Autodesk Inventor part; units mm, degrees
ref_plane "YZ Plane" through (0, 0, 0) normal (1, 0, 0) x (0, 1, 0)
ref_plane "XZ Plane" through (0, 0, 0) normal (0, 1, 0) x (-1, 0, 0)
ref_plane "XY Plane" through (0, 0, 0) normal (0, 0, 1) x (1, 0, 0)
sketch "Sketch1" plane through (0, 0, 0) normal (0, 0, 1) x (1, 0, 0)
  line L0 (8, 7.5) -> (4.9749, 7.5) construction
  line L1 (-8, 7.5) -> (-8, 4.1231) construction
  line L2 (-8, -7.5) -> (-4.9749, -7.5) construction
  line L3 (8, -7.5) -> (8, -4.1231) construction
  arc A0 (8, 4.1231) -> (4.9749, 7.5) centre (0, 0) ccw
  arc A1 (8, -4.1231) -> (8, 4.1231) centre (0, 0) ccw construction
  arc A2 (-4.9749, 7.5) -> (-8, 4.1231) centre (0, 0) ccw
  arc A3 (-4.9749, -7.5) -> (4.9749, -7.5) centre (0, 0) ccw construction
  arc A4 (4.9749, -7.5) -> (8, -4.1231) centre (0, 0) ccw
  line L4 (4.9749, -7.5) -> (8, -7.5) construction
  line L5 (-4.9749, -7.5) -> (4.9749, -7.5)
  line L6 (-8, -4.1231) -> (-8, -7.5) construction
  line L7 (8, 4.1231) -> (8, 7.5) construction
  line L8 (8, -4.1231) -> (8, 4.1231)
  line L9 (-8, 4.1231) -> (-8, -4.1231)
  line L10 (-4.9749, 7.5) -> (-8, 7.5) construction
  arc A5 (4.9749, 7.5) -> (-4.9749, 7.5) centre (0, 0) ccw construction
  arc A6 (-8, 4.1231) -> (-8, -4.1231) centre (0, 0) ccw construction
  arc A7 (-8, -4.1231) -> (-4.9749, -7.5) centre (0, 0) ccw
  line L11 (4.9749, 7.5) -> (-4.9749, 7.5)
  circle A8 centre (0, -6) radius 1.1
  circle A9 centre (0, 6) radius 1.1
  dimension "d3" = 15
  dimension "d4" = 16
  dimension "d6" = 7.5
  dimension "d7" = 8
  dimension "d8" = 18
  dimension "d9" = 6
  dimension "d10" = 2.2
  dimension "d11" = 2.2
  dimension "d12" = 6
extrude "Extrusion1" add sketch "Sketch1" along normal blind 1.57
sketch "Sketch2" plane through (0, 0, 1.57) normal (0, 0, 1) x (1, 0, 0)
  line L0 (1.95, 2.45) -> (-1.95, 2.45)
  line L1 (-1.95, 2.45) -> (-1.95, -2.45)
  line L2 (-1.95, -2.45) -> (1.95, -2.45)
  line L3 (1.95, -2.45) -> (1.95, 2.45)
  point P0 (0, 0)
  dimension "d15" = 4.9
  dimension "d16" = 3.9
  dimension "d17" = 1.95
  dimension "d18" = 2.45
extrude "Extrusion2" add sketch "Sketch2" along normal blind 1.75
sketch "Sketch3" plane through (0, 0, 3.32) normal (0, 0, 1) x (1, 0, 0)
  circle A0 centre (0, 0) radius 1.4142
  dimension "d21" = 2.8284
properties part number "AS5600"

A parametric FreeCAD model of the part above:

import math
import FreeCAD as App
import Part
import Sketcher

doc = App.newDocument("Part")
body = doc.addObject("PartDesign::Body", "Body")

sketch1 = doc.addObject("Sketcher::SketchObject", "Sketch")
body.addObject(sketch1)
sketch1.AttachmentSupport = (doc.XY_Plane, [""])
sketch1.MapMode = "FlatFace"
sketch1.addGeometry(Part.LineSegment(App.Vector(8, -4.1231, 0), App.Vector(8, 4.1231, 0)), False)
sketch1.addGeometry(Part.ArcOfCircle(Part.Circle(App.Vector(0, 0, 0), App.Vector(0, 0, 1), 8.999979), math.radians(27.266013), math.radians(56.442888)), False)
sketch1.addGeometry(Part.LineSegment(App.Vector(4.9749, 7.5, 0), App.Vector(-4.9749, 7.5, 0)), False)
sketch1.addGeometry(Part.ArcOfCircle(Part.Circle(App.Vector(0, 0, 0), App.Vector(0, 0, 1), 8.999997), math.radians(123.557112), math.radians(152.733987)), False)
sketch1.addGeometry(Part.LineSegment(App.Vector(-8, 4.1231, 0), App.Vector(-8, -4.1231, 0)), False)
sketch1.addGeometry(Part.ArcOfCircle(Part.Circle(App.Vector(0, 0, 0), App.Vector(0, 0, 1), 8.999979), math.radians(-152.733987), math.radians(-123.557112)), False)
sketch1.addGeometry(Part.LineSegment(App.Vector(-4.9749, -7.5, 0), App.Vector(4.9749, -7.5, 0)), False)
sketch1.addGeometry(Part.ArcOfCircle(Part.Circle(App.Vector(0, 0, 0), App.Vector(0, 0, 1), 8.999997), math.radians(-56.442888), math.radians(-27.266013)), False)
sketch1.addGeometry(Part.Circle(App.Vector(0, -6, 0), App.Vector(0, 0, 1), 1.1), False)
sketch1.addGeometry(Part.Circle(App.Vector(0, 6, 0), App.Vector(0, 0, 1), 1.1), False)
sketch1.addConstraint(Sketcher.Constraint("Coincident", 0, 2, 1, 1))
sketch1.addConstraint(Sketcher.Constraint("Coincident", 1, 2, 2, 1))
sketch1.addConstraint(Sketcher.Constraint("Coincident", 2, 2, 3, 1))
sketch1.addConstraint(Sketcher.Constraint("Coincident", 3, 2, 4, 1))
sketch1.addConstraint(Sketcher.Constraint("Coincident", 4, 2, 5, 1))
sketch1.addConstraint(Sketcher.Constraint("Coincident", 5, 2, 6, 1))
sketch1.addConstraint(Sketcher.Constraint("Coincident", 6, 2, 7, 1))
sketch1.addConstraint(Sketcher.Constraint("Coincident", 7, 2, 0, 1))
sketch1.addConstraint(Sketcher.Constraint("Vertical", 0))
sketch1.addConstraint(Sketcher.Constraint("Horizontal", 2))
sketch1.addConstraint(Sketcher.Constraint("Vertical", 4))
sketch1.addConstraint(Sketcher.Constraint("Horizontal", 6))
sketch1.addConstraint(Sketcher.Constraint("Coincident", 1, 3, -1, 1))
sketch1.addConstraint(Sketcher.Constraint("Coincident", 3, 3, -1, 1))
sketch1.addConstraint(Sketcher.Constraint("Coincident", 5, 3, -1, 1))
sketch1.addConstraint(Sketcher.Constraint("Coincident", 7, 3, -1, 1))
sketch1.addConstraint(Sketcher.Constraint("Equal", 1, 3))
sketch1.addConstraint(Sketcher.Constraint("Equal", 3, 5))
sketch1.addConstraint(Sketcher.Constraint("Equal", 5, 7))
sketch1.addConstraint(Sketcher.Constraint("Equal", 8, 9))
sketch1.addConstraint(Sketcher.Constraint("Symmetric", 8, 3, 9, 3, -1, 1))
sketch1.addConstraint(Sketcher.Constraint("PointOnObject", 8, 3, -2))
sketch1.addConstraint(Sketcher.Constraint("Horizontal", 0, 2, 3, 2))
sketch1.addConstraint(Sketcher.Constraint("Vertical", 2, 2, 5, 2))
sketch1.addConstraint(Sketcher.Constraint("Radius", 1, 9.0))
sketch1.addConstraint(Sketcher.Constraint("Diameter", 8, 2.2))
sketch1.addConstraint(Sketcher.Constraint("DistanceY", 8, 3, -1, 1, 6.0))
sketch1.addConstraint(Sketcher.Constraint("DistanceX", -1, 1, 0, 2, 8.0))
sketch1.addConstraint(Sketcher.Constraint("DistanceY", -1, 1, 1, 2, 7.5))
pad1 = doc.addObject("PartDesign::Pad", "Pad")
body.addObject(pad1)
pad1.Profile = sketch1
pad1.Length = 1.57

sketch2 = doc.addObject("Sketcher::SketchObject", "Sketch001")
body.addObject(sketch2)
sketch2.AttachmentSupport = (doc.XY_Plane, [""])
sketch2.MapMode = "FlatFace"
sketch2.AttachmentOffset = App.Placement(App.Vector(0, 0, 1.57), App.Rotation())
sketch2.addGeometry(Part.LineSegment(App.Vector(1.95, -2.45, 0), App.Vector(1.95, 2.45, 0)), False)
sketch2.addGeometry(Part.LineSegment(App.Vector(1.95, 2.45, 0), App.Vector(-1.95, 2.45, 0)), False)
sketch2.addGeometry(Part.LineSegment(App.Vector(-1.95, 2.45, 0), App.Vector(-1.95, -2.45, 0)), False)
sketch2.addGeometry(Part.LineSegment(App.Vector(-1.95, -2.45, 0), App.Vector(1.95, -2.45, 0)), False)
sketch2.addConstraint(Sketcher.Constraint("Coincident", 0, 2, 1, 1))
sketch2.addConstraint(Sketcher.Constraint("Coincident", 1, 2, 2, 1))
sketch2.addConstraint(Sketcher.Constraint("Coincident", 2, 2, 3, 1))
sketch2.addConstraint(Sketcher.Constraint("Coincident", 3, 2, 0, 1))
sketch2.addConstraint(Sketcher.Constraint("Vertical", 0))
sketch2.addConstraint(Sketcher.Constraint("Horizontal", 1))
sketch2.addConstraint(Sketcher.Constraint("Vertical", 2))
sketch2.addConstraint(Sketcher.Constraint("Horizontal", 3))
sketch2.addConstraint(Sketcher.Constraint("Symmetric", 0, 2, 2, 2, -1, 1))
sketch2.addConstraint(Sketcher.Constraint("DistanceX", 1, 2, 1, 1, 3.9))
sketch2.addConstraint(Sketcher.Constraint("DistanceY", 0, 1, 0, 2, 4.9))
pad2 = doc.addObject("PartDesign::Pad", "Pad001")
body.addObject(pad2)
pad2.Profile = sketch2
pad2.Length = 1.75

doc.recompute()
